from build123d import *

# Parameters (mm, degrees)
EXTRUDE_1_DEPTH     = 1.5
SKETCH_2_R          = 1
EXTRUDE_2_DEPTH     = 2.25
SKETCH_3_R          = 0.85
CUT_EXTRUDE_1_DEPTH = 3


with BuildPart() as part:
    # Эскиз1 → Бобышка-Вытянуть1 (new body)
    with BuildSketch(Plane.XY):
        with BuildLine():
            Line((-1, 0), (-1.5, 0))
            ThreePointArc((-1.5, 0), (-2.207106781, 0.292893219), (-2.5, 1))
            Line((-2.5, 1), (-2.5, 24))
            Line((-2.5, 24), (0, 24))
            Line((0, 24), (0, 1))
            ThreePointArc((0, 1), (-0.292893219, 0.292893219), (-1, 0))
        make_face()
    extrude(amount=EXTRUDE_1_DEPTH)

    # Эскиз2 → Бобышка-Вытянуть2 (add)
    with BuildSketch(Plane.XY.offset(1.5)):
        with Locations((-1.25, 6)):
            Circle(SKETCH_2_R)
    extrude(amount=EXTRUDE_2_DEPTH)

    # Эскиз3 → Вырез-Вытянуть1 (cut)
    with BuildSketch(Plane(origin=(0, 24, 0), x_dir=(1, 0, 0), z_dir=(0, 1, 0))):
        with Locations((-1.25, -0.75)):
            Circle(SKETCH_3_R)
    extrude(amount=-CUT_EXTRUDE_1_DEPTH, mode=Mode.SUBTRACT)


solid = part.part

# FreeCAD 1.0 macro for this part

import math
import FreeCAD as App
import Part
import Sketcher

V = App.Vector
Q = App.Units.Quantity

doc = App.newDocument("Part")
body = doc.addObject("PartDesign::Body", "Body")

# Sketch on XY plane
sketch1 = body.newObject("Sketcher::SketchObject", "Sketch")
sketch1.AttachmentSupport = (doc.getObject("XY_Plane"), [""])
sketch1.MapMode = "FlatFace"
sketch1.addGeometry([
    Part.LineSegment(V(-1.5, 0, 0), V(-1, 0, 0)),  # 0
    Part.ArcOfCircle(Part.Circle(V(-1, 1, 0), V(0, 0, 1), 1), math.radians(-90), math.radians(0)),  # 1
    Part.LineSegment(V(0, 1, 0), V(0, 24, 0)),  # 2
    Part.LineSegment(V(0, 24, 0), V(-2.5, 24, 0)),  # 3
    Part.LineSegment(V(-2.5, 24, 0), V(-2.5, 1, 0)),  # 4
    Part.ArcOfCircle(Part.Circle(V(-1.5, 1, 0), V(0, 0, 1), 1), math.radians(-180), math.radians(-90)),  # 5
], False)
sketch1.addConstraint([
    Sketcher.Constraint("Tangent", 0, 2, 1, 1),
    Sketcher.Constraint("Tangent", 1, 2, 2, 1),
    Sketcher.Constraint("Coincident", 2, 2, 3, 1),
    Sketcher.Constraint("Coincident", 3, 2, 4, 1),
    Sketcher.Constraint("Tangent", 4, 2, 5, 1),
    Sketcher.Constraint("Tangent", 5, 2, 0, 1),
    Sketcher.Constraint("Horizontal", 0),
    Sketcher.Constraint("Vertical", 2),
    Sketcher.Constraint("Horizontal", 3),
    Sketcher.Constraint("Vertical", 4),
    Sketcher.Constraint("Equal", 1, 5),
    Sketcher.Constraint("PointOnObject", 0, 2, -1),
    Sketcher.Constraint("PointOnObject", 1, 2, -2),
    Sketcher.Constraint("Radius", 1, Q("1 mm")),
    Sketcher.Constraint("DistanceY", 2, 1, 2, 2, Q("23 mm")),
    Sketcher.Constraint("DistanceX", 0, 1, 0, 2, Q("0.5 mm")),
])
pad1 = body.newObject("PartDesign::Pad", "Pad")
pad1.Profile = sketch1
pad1.Length = 1.5

# Sketch on XY plane
sketch2 = body.newObject("Sketcher::SketchObject", "Sketch001")
sketch2.AttachmentSupport = (doc.getObject("XY_Plane"), [""])
sketch2.MapMode = "FlatFace"
sketch2.AttachmentOffset = App.Placement(V(0, 0, 1.5), App.Rotation())
sketch2.addGeometry(Part.Circle(V(-1.25, 6, 0), V(0, 0, 1), 1), False)
sketch2.addConstraint([
    Sketcher.Constraint("Diameter", 0, Q("2 mm")),
    Sketcher.Constraint("DistanceY", -1, 1, 0, 3, Q("6 mm")),
    Sketcher.Constraint("DistanceX", 0, 3, -1, 1, Q("1.25 mm")),
])
pad2 = body.newObject("PartDesign::Pad", "Pad001")
pad2.Profile = sketch2
pad2.Length = 2.25

# Sketch on XZ plane
sketch3 = body.newObject("Sketcher::SketchObject", "Sketch002")
sketch3.AttachmentSupport = (doc.getObject("XZ_Plane"), [""])
sketch3.MapMode = "FlatFace"
sketch3.AttachmentOffset = App.Placement(V(0, 0, -24), App.Rotation())
sketch3.addGeometry(Part.Circle(V(-1.25, 0.75, 0), V(0, 0, 1), 0.85), False)
sketch3.addConstraint([
    Sketcher.Constraint("Diameter", 0, Q("1.7 mm")),
    Sketcher.Constraint("DistanceX", 0, 3, -1, 1, Q("1.25 mm")),
    Sketcher.Constraint("DistanceY", -1, 1, 0, 3, Q("0.75 mm")),
])
pocket1 = body.newObject("PartDesign::Pocket", "Pocket")
pocket1.Profile = sketch3
pocket1.Length = 3
pocket1.Reversed = True

doc.recompute()
